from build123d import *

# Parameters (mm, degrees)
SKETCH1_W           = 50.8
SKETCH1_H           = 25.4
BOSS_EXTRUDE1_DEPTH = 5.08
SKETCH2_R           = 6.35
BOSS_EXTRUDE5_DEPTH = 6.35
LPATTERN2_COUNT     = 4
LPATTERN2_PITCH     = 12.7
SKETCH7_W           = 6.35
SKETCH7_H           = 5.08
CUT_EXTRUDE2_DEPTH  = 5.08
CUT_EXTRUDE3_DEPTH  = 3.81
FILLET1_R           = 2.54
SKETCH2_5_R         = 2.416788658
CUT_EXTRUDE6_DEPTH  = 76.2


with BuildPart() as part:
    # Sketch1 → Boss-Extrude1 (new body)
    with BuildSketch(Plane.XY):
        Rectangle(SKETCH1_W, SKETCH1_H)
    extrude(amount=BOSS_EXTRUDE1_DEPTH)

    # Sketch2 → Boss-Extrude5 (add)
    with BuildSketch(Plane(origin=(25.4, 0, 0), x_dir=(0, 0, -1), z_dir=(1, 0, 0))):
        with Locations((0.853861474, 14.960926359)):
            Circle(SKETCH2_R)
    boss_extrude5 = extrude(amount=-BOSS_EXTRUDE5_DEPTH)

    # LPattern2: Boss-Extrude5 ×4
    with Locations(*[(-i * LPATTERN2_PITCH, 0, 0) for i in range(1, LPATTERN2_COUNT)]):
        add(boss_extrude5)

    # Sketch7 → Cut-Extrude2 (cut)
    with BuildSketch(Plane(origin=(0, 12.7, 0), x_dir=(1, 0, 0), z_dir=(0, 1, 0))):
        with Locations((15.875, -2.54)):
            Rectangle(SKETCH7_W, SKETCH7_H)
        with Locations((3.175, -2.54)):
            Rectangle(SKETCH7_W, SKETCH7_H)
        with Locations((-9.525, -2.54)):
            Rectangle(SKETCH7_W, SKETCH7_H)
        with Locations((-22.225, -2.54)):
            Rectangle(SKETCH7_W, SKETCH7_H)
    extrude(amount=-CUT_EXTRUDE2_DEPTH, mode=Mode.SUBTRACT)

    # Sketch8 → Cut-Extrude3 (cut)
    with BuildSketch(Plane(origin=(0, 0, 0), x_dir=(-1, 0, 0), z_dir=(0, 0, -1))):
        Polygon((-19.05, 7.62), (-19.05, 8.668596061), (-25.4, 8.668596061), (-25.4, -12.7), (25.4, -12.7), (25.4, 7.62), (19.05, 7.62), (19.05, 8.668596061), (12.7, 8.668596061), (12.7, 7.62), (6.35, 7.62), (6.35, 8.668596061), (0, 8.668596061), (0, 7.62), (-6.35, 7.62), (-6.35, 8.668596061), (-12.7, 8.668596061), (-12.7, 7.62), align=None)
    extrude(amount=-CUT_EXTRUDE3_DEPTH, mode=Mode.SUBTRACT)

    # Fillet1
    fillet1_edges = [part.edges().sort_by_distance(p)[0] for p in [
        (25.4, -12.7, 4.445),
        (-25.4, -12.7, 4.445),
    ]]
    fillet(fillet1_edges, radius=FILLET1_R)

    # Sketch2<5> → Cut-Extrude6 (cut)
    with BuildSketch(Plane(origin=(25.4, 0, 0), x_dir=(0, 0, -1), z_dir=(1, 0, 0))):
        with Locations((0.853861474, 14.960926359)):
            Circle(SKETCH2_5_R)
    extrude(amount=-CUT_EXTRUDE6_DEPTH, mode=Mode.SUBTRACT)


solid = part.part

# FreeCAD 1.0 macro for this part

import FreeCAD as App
import Part
import Sketcher

V = App.Vector
Q = App.Units.Quantity


def edges_at(feature, points):
    """Names of the edges that pass closest to the given points."""
    edges = feature.Shape.Edges
    near = lambda p: min(range(len(edges)), key=lambda i: edges[i].distToShape(Part.Vertex(*p))[0])
    return sorted({f"Edge{near(p) + 1}" for p in points})

doc = App.newDocument("Part")
params = doc.addObject("Spreadsheet::Sheet", "Params")
for row, (alias, value) in enumerate([
    ("sketch1_width", "2 in"),
    ("sketch1_height", "1 in"),
    ("pad1_length", "0.2 in"),
    ("sketch2_diameter", "0.5 in"),
    ("pad2_length", "0.25 in"),
    ("linearpattern_pitch", "0.5 in"),
    ("sketch3_height", "0.2 in"),
    ("pocket1_length", "0.2 in"),
    ("sketch4_width", "2 in"),
    ("sketch4_height", "0.8 in"),
    ("pocket2_length", "0.15 in"),
    ("fillet_radius", "0.1 in"),
    ("pocket3_length", "3 in"),
], start=1):
    params.set(f"A{row}", alias)
    params.set(f"B{row}", "=" + value)
    params.setAlias(f"B{row}", alias)

body = doc.addObject("PartDesign::Body", "Body")

# Sketch on XY plane
sketch1 = body.newObject("Sketcher::SketchObject", "Sketch")
sketch1.AttachmentSupport = (doc.getObject("XY_Plane"), [""])
sketch1.MapMode = "FlatFace"
sketch1.addGeometry([
    Part.LineSegment(V(-25, 13, 0), V(-25, -13, 0)),
    Part.LineSegment(V(-25, -13, 0), V(25, -13, 0)),
    Part.LineSegment(V(25, -13, 0), V(25, 13, 0)),
    Part.LineSegment(V(25, 13, 0), V(-25, 13, 0)),
], False)
sketch1.addConstraint([
    Sketcher.Constraint("Coincident", 0, 2, 1, 1),
    Sketcher.Constraint("Coincident", 1, 2, 2, 1),
    Sketcher.Constraint("Coincident", 2, 2, 3, 1),
    Sketcher.Constraint("Coincident", 3, 2, 0, 1),
    Sketcher.Constraint("Vertical", 0),
    Sketcher.Constraint("Horizontal", 1),
    Sketcher.Constraint("Vertical", 2),
    Sketcher.Constraint("Horizontal", 3),
    Sketcher.Constraint("Symmetric", 0, 2, 2, 2, -1, 1),
    Sketcher.Constraint("DistanceX", 1, 1, 1, 2, Q("2 in")),
    Sketcher.Constraint("DistanceY", 0, 2, 0, 1, Q("1 in")),
])
sketch1.setExpression("Constraints[9]", "Params.sketch1_width")
sketch1.setExpression("Constraints[10]", "Params.sketch1_height")
pad1 = body.newObject("PartDesign::Pad", "Pad")
pad1.Profile = sketch1
pad1.setExpression("Length", "Params.pad1_length")

# Sketch on YZ plane
sketch2 = body.newObject("Sketcher::SketchObject", "Sketch001")
sketch2.AttachmentSupport = (doc.getObject("YZ_Plane"), [""])
sketch2.MapMode = "FlatFace"
sketch2.AttachmentOffset = App.Placement(V(0, 0, 1 * 25.4), App.Rotation())
sketch2.addGeometry(Part.Circle(V(15, -1, 0), V(0, 0, 1), 6), False)
sketch2.addConstraint([
    Sketcher.Constraint("Diameter", 0, Q("0.5 in")),
    Sketcher.Constraint("DistanceY", 0, 3, -1, 1, 0.853861),
    Sketcher.Constraint("DistanceX", -1, 1, 0, 3, 14.960926),
])
sketch2.setExpression("Constraints[0]", "Params.sketch2_diameter")
pad2 = body.newObject("PartDesign::Pad", "Pad001")
pad2.Profile = sketch2
pad2.setExpression("Length", "Params.pad2_length")
pad2.Reversed = True
doc.recompute()

linearpattern = body.newObject("PartDesign::LinearPattern", "LinearPattern")
linearpattern.Originals = [pad2]
linearpattern.Direction = (doc.getObject("X_Axis"), [""])
linearpattern.Mode = "offset"
linearpattern.setExpression("Offset", "Params.linearpattern_pitch")
linearpattern.Occurrences = 4
linearpattern.Reversed = True
body.Tip = linearpattern

# Sketch on XZ plane
sketch3 = body.newObject("Sketcher::SketchObject", "Sketch002")
sketch3.AttachmentSupport = (doc.getObject("XZ_Plane"), [""])
sketch3.MapMode = "FlatFace"
sketch3.AttachmentOffset = App.Placement(V(0, 0, -0.5 * 25.4), App.Rotation())
sketch3.addGeometry([
    Part.LineSegment(V(13, 0, 0), V(13, 5, 0)),  # 0
    Part.LineSegment(V(13, 5, 0), V(19, 5, 0)),  # 1
    Part.LineSegment(V(19, 5, 0), V(19, 0, 0)),  # 2
    Part.LineSegment(V(19, 0, 0), V(13, 0, 0)),  # 3
    Part.LineSegment(V(0, 0, 0), V(0, 5, 0)),  # 4
    Part.LineSegment(V(0, 5, 0), V(6, 5, 0)),  # 5
    Part.LineSegment(V(6, 5, 0), V(6, 0, 0)),  # 6
    Part.LineSegment(V(6, 0, 0), V(0, 0, 0)),  # 7
    Part.LineSegment(V(-13, 0, 0), V(-13, 5, 0)),  # 8
    Part.LineSegment(V(-13, 5, 0), V(-6, 5, 0)),  # 9
    Part.LineSegment(V(-6, 5, 0), V(-6, 0, 0)),  # 10
    Part.LineSegment(V(-6, 0, 0), V(-13, 0, 0)),  # 11
    Part.LineSegment(V(-25, 0, 0), V(-25, 5, 0)),  # 12
    Part.LineSegment(V(-25, 5, 0), V(-19, 5, 0)),  # 13
    Part.LineSegment(V(-19, 5, 0), V(-19, 0, 0)),  # 14
    Part.LineSegment(V(-19, 0, 0), V(-25, 0, 0)),  # 15
], False)
sketch3.addConstraint([
    Sketcher.Constraint("Coincident", 0, 2, 1, 1),
    Sketcher.Constraint("Coincident", 1, 2, 2, 1),
    Sketcher.Constraint("Coincident", 2, 2, 3, 1),
    Sketcher.Constraint("Coincident", 3, 2, 0, 1),
    Sketcher.Constraint("Coincident", 4, 2, 5, 1),
    Sketcher.Constraint("Coincident", 5, 2, 6, 1),
    Sketcher.Constraint("Coincident", 6, 2, 7, 1),
    Sketcher.Constraint("Coincident", 7, 2, 4, 1),
    Sketcher.Constraint("Coincident", 8, 2, 9, 1),
    Sketcher.Constraint("Coincident", 9, 2, 10, 1),
    Sketcher.Constraint("Coincident", 10, 2, 11, 1),
    Sketcher.Constraint("Coincident", 11, 2, 8, 1),
    Sketcher.Constraint("Coincident", 12, 2, 13, 1),
    Sketcher.Constraint("Coincident", 13, 2, 14, 1),
    Sketcher.Constraint("Coincident", 14, 2, 15, 1),
    Sketcher.Constraint("Coincident", 15, 2, 12, 1),
    Sketcher.Constraint("Vertical", 0),
    Sketcher.Constraint("Horizontal", 1),
    Sketcher.Constraint("Vertical", 2),
    Sketcher.Constraint("Horizontal", 3),
    Sketcher.Constraint("Vertical", 4),
    Sketcher.Constraint("Horizontal", 5),
    Sketcher.Constraint("Vertical", 6),
    Sketcher.Constraint("Horizontal", 7),
    Sketcher.Constraint("Vertical", 8),
    Sketcher.Constraint("Horizontal", 9),
    Sketcher.Constraint("Vertical", 10),
    Sketcher.Constraint("Horizontal", 11),
    Sketcher.Constraint("Vertical", 12),
    Sketcher.Constraint("Horizontal", 13),
    Sketcher.Constraint("Vertical", 14),
    Sketcher.Constraint("Horizontal", 15),
    Sketcher.Constraint("Coincident", 7, 2, -1, 1),
    Sketcher.Constraint("Symmetric", 6, 2, 10, 2, -1, 1),
    Sketcher.Constraint("Symmetric", 3, 2, 11, 2, -1, 1),
    Sketcher.Constraint("Symmetric", 2, 2, 14, 2, -1, 1),
    Sketcher.Constraint("Horizontal", 1, 2, 4, 2),
    Sketcher.Constraint("Horizontal", 5, 2, 8, 2),
    Sketcher.Constraint("Horizontal", 9, 2, 12, 2),
    Sketcher.Constraint("Equal", 3, 5),
    Sketcher.Constraint("Equal", 7, 9),
    Sketcher.Constraint("Equal", 11, 13),
    Sketcher.Constraint("DistanceY", 0, 1, 0, 2, Q("0.2 in")),
    Sketcher.Constraint("DistanceX", 12, 2, -1, 1, Q("1 in")),
])
sketch3.setExpression("Constraints[42]", "Params.sketch3_height")
pocket1 = body.newObject("PartDesign::Pocket", "Pocket")
pocket1.Profile = sketch3
pocket1.setExpression("Length", "Params.pocket1_length")
pocket1.Reversed = True

# Sketch on XY plane
sketch4 = body.newObject("Sketcher::SketchObject", "Sketch003")
sketch4.AttachmentSupport = (doc.getObject("XY_Plane"), [""])
sketch4.MapMode = "FlatFace"
sketch4.addGeometry([
    Part.LineSegment(V(19.1, 7.6, 0), V(19.1, 8.7, 0)),  # 0
    Part.LineSegment(V(19.1, 8.7, 0), V(25.4, 8.7, 0)),  # 1
    Part.LineSegment(V(25.4, 8.7, 0), V(25.4, -12.7, 0)),  # 2
    Part.LineSegment(V(25.4, -12.7, 0), V(-25.4, -12.7, 0)),  # 3
    Part.LineSegment(V(-25.4, -12.7, 0), V(-25.4, 7.6, 0)),  # 4
    Part.LineSegment(V(-25.4, 7.6, 0), V(-19.1, 7.6, 0)),  # 5
    Part.LineSegment(V(-19.1, 7.6, 0), V(-19.1, 8.7, 0)),  # 6
    Part.LineSegment(V(-19.1, 8.7, 0), V(-12.7, 8.7, 0)),  # 7
    Part.LineSegment(V(-12.7, 8.7, 0), V(-12.7, 7.6, 0)),  # 8
    Part.LineSegment(V(-12.7, 7.6, 0), V(-6.3, 7.6, 0)),  # 9
    Part.LineSegment(V(-6.3, 7.6, 0), V(-6.3, 8.7, 0)),  # 10
    Part.LineSegment(V(-6.3, 8.7, 0), V(0, 8.7, 0)),  # 11
    Part.LineSegment(V(0, 8.7, 0), V(0, 7.6, 0)),  # 12
    Part.LineSegment(V(0, 7.6, 0), V(6.3, 7.6, 0)),  # 13
    Part.LineSegment(V(6.3, 7.6, 0), V(6.3, 8.7, 0)),  # 14
    Part.LineSegment(V(6.3, 8.7, 0), V(12.7, 8.7, 0)),  # 15
    Part.LineSegment(V(12.7, 8.7, 0), V(12.7, 7.6, 0)),  # 16
    Part.LineSegment(V(12.7, 7.6, 0), V(19.1, 7.6, 0)),  # 17
], False)
sketch4.addConstraint([
    Sketcher.Constraint("Coincident", 0, 2, 1, 1),
    Sketcher.Constraint("Coincident", 1, 2, 2, 1),
    Sketcher.Constraint("Coincident", 2, 2, 3, 1),
    Sketcher.Constraint("Coincident", 3, 2, 4, 1),
    Sketcher.Constraint("Coincident", 4, 2, 5, 1),
    Sketcher.Constraint("Coincident", 5, 2, 6, 1),
    Sketcher.Constraint("Coincident", 6, 2, 7, 1),
    Sketcher.Constraint("Coincident", 7, 2, 8, 1),
    Sketcher.Constraint("Coincident", 8, 2, 9, 1),
    Sketcher.Constraint("Coincident", 9, 2, 10, 1),
    Sketcher.Constraint("Coincident", 10, 2, 11, 1),
    Sketcher.Constraint("Coincident", 11, 2, 12, 1),
    Sketcher.Constraint("Coincident", 12, 2, 13, 1),
    Sketcher.Constraint("Coincident", 13, 2, 14, 1),
    Sketcher.Constraint("Coincident", 14, 2, 15, 1),
    Sketcher.Constraint("Coincident", 15, 2, 16, 1),
    Sketcher.Constraint("Coincident", 16, 2, 17, 1),
    Sketcher.Constraint("Coincident", 17, 2, 0, 1),
    Sketcher.Constraint("Vertical", 0),
    Sketcher.Constraint("Horizontal", 1),
    Sketcher.Constraint("Vertical", 2),
    Sketcher.Constraint("Horizontal", 3),
    Sketcher.Constraint("Vertical", 4),
    Sketcher.Constraint("Horizontal", 5),
    Sketcher.Constraint("Vertical", 6),
    Sketcher.Constraint("Horizontal", 7),
    Sketcher.Constraint("Vertical", 8),
    Sketcher.Constraint("Horizontal", 9),
    Sketcher.Constraint("Vertical", 10),
    Sketcher.Constraint("Horizontal", 11),
    Sketcher.Constraint("Vertical", 12),
    Sketcher.Constraint("Horizontal", 13),
    Sketcher.Constraint("Vertical", 14),
    Sketcher.Constraint("Horizontal", 15),
    Sketcher.Constraint("Vertical", 16),
    Sketcher.Constraint("Horizontal", 17),
    Sketcher.Constraint("Symmetric", 0, 2, 6, 2, -2),
    Sketcher.Constraint("Symmetric", 9, 2, 13, 2, -2),
    Sketcher.Constraint("Symmetric", 7, 2, 15, 2, -2),
    Sketcher.Constraint("PointOnObject", 11, 2, -2),
    Sketcher.Constraint("Horizontal", 5, 2, 8, 2),
    Sketcher.Constraint("Horizontal", 7, 2, 10, 2),
    Sketcher.Constraint("Horizontal", 13, 2, 16, 2),
    Sketcher.Constraint("Equal", 1, 5),
    Sketcher.Constraint("Equal", 5, 7),
    Sketcher.Constraint("Equal", 7, 9),
    Sketcher.Constraint("Equal", 9, 11),
    Sketcher.Constraint("DistanceX", 3, 2, 3, 1, Q("2 in")),
    Sketcher.Constraint("DistanceY", 4, 1, 4, 2, Q("0.8 in")),
    Sketcher.Constraint("DistanceY", 2, 2, -1, 1, Q("0.5 in")),
    Sketcher.Constraint("DistanceY", 0, 1, 0, 2, 1.048596),
])
sketch4.setExpression("Constraints[47]", "Params.sketch4_width")
sketch4.setExpression("Constraints[48]", "Params.sketch4_height")
pocket2 = body.newObject("PartDesign::Pocket", "Pocket001")
pocket2.Profile = sketch4
pocket2.setExpression("Length", "Params.pocket2_length")
pocket2.Reversed = True
doc.recompute()

fillet = body.newObject("PartDesign::Fillet", "Fillet")
fillet.Base = (pocket2, edges_at(pocket2, [(25.4, -12.7, 4.445), (-25.4, -12.7, 4.445)]))
fillet.setExpression("Radius", "Params.fillet_radius")

# Sketch on YZ plane
sketch5 = body.newObject("Sketcher::SketchObject", "Sketch004")
sketch5.AttachmentSupport = (doc.getObject("YZ_Plane"), [""])
sketch5.MapMode = "FlatFace"
sketch5.AttachmentOffset = App.Placement(V(0, 0, 1 * 25.4), App.Rotation())
sketch5.addGeometry(Part.Circle(V(15, -0.9, 0), V(0, 0, 1), 2.4), False)
sketch5.addConstraint([
    Sketcher.Constraint("Diameter", 0, 4.833577),
    Sketcher.Constraint("DistanceY", 0, 3, -1, 1, 0.853861),
    Sketcher.Constraint("DistanceX", -1, 1, 0, 3, 14.960926),
])
pocket3 = body.newObject("PartDesign::Pocket", "Pocket002")
pocket3.Profile = sketch5
pocket3.setExpression("Length", "Params.pocket3_length")

doc.recompute()
